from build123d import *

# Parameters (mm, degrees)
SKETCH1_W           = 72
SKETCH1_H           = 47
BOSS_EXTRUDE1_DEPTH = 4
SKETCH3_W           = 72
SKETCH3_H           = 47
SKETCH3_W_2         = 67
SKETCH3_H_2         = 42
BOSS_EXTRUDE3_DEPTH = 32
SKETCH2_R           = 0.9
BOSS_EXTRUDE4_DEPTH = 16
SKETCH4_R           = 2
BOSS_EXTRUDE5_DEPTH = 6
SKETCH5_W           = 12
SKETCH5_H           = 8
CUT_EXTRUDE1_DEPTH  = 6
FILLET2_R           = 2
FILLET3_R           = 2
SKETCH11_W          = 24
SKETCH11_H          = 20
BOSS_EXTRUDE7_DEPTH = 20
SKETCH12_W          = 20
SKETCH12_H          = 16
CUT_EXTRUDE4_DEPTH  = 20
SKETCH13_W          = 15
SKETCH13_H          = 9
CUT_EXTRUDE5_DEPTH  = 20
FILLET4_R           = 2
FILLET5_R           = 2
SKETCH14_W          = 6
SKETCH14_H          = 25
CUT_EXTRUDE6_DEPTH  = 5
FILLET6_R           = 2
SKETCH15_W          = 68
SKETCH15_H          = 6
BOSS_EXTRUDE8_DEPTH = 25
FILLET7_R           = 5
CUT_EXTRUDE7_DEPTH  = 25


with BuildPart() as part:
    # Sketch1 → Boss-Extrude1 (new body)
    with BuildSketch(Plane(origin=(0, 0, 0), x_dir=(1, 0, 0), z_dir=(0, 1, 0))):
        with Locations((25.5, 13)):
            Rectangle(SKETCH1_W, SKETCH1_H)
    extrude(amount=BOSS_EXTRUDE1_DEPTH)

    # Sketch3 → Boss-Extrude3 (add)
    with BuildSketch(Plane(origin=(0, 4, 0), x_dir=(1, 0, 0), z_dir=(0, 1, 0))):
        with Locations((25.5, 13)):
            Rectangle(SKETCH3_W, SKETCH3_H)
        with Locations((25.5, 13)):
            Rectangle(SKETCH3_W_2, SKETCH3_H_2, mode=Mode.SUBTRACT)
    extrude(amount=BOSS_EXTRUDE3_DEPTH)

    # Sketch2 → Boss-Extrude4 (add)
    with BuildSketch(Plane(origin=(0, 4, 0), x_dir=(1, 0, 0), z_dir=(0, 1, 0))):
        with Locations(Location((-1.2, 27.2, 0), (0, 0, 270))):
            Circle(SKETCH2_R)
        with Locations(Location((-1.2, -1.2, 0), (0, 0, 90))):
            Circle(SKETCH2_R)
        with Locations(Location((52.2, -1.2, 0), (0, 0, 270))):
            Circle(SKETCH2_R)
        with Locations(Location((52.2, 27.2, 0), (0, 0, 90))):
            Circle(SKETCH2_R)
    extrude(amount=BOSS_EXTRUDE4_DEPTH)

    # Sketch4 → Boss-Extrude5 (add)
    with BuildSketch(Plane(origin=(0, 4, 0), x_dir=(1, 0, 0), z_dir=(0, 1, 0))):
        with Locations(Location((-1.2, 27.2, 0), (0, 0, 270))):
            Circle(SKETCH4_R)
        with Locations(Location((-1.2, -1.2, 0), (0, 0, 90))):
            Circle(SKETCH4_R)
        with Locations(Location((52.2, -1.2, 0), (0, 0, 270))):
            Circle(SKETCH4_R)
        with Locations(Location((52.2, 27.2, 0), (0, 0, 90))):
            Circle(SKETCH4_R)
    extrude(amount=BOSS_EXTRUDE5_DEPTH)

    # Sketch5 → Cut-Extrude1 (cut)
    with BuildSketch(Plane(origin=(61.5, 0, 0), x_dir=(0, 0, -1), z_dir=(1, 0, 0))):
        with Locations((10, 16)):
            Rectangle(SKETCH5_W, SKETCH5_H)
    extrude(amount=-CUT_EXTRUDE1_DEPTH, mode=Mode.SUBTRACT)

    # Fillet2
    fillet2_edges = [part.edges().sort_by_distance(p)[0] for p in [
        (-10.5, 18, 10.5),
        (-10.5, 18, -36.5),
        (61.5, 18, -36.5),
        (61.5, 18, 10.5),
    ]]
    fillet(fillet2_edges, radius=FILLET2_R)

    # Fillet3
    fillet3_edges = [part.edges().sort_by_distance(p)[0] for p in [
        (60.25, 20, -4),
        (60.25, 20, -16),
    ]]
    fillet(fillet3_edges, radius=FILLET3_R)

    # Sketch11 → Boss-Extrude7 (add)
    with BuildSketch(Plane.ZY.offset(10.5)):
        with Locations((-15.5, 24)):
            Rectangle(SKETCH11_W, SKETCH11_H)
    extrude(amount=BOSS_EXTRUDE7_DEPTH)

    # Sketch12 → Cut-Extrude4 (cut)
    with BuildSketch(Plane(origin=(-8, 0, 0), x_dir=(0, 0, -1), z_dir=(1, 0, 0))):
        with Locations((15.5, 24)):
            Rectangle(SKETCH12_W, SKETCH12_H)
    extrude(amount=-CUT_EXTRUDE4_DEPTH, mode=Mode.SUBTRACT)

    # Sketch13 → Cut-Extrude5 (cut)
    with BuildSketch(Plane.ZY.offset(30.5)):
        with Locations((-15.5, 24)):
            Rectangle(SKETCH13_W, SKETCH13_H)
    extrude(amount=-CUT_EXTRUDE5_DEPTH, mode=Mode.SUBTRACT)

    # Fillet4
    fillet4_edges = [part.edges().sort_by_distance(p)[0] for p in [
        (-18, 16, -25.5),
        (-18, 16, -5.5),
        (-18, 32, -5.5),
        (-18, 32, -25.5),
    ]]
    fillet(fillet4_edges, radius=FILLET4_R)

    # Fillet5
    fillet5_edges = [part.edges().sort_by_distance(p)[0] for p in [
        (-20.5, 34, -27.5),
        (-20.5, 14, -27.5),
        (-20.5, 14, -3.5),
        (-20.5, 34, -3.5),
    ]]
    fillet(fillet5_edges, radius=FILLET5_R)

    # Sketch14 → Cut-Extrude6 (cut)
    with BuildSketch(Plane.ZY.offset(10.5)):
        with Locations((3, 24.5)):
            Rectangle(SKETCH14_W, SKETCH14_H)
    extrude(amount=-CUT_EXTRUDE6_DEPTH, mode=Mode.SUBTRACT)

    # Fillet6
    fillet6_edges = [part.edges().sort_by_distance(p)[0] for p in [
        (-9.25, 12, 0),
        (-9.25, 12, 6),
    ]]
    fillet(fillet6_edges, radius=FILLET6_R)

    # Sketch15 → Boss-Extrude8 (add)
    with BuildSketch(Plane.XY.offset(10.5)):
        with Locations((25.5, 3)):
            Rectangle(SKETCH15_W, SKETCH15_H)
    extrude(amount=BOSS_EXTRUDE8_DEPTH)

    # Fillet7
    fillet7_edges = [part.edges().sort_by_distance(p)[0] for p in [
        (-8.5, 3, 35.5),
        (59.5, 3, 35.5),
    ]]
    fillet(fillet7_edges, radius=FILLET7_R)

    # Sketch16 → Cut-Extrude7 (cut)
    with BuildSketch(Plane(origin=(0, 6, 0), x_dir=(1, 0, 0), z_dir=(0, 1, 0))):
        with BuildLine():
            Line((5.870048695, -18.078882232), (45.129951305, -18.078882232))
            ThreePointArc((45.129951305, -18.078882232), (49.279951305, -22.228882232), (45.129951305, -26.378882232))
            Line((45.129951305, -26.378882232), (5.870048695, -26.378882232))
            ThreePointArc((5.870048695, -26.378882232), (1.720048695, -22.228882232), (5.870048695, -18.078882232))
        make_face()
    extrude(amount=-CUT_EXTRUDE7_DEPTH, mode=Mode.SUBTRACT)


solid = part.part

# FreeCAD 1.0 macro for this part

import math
import FreeCAD as App
import Part
import Sketcher


def edges_at(feature, points):
    """Names of the edges that pass closest to the given points."""
    edges = feature.Shape.Edges
    near = lambda p: min(range(len(edges)), key=lambda i: edges[i].distToShape(Part.Vertex(*p))[0])
    return sorted({f"Edge{near(p) + 1}" for p in points})


def add_polygon(sketch, points):
    """Adds a closed chain of lines whose ends are joined by coincident constraints."""
    first, n = sketch.GeometryCount, len(points)
    for a, b in zip(points, points[1:] + points[:1]):
        sketch.addGeometry(Part.LineSegment(App.Vector(*a, 0), App.Vector(*b, 0)), False)
    for i in range(n):
        sketch.addConstraint(Sketcher.Constraint("Coincident", first + i, 2, first + (i + 1) % n, 1))

doc = App.newDocument("Part")
body = doc.addObject("PartDesign::Body", "Body")

sketch1 = body.newObject("Sketcher::SketchObject", "Sketch")
sketch1.AttachmentSupport = (doc.getObject("XZ_Plane"), [""])
sketch1.MapMode = "FlatFace"
add_polygon(sketch1, [(-10.5, -36.5), (-10.5, 10.5), (61.5, 10.5), (61.5, -36.5)])
sketch1.addConstraint(Sketcher.Constraint("Vertical", 0))
sketch1.addConstraint(Sketcher.Constraint("Horizontal", 1))
sketch1.addConstraint(Sketcher.Constraint("Vertical", 2))
sketch1.addConstraint(Sketcher.Constraint("Horizontal", 3))
sketch1.addConstraint(Sketcher.Constraint("DistanceX", 1, 1, 1, 2, 72.0))
sketch1.addConstraint(Sketcher.Constraint("DistanceY", 0, 1, 0, 2, 47.0))
sketch1.addConstraint(Sketcher.Constraint("DistanceX", 0, 2, -1, 1, 10.5))
sketch1.addConstraint(Sketcher.Constraint("DistanceY", -1, 1, 0, 2, 10.5))
pad1 = body.newObject("PartDesign::Pad", "Pad")
pad1.Profile = sketch1
pad1.Length = 4
pad1.Reversed = True

sketch2 = body.newObject("Sketcher::SketchObject", "Sketch001")
sketch2.AttachmentSupport = (doc.getObject("XZ_Plane"), [""])
sketch2.MapMode = "FlatFace"
sketch2.AttachmentOffset = App.Placement(App.Vector(0, 0, -4), App.Rotation())
add_polygon(sketch2, [(-10.5, -36.5), (-10.5, 10.5), (61.5, 10.5), (61.5, -36.5)])
add_polygon(sketch2, [(59, 8), (-8, 8), (-8, -34), (59, -34)])
sketch2.addConstraint(Sketcher.Constraint("Vertical", 0))
sketch2.addConstraint(Sketcher.Constraint("Horizontal", 1))
sketch2.addConstraint(Sketcher.Constraint("Vertical", 2))
sketch2.addConstraint(Sketcher.Constraint("Horizontal", 3))
sketch2.addConstraint(Sketcher.Constraint("Horizontal", 4))
sketch2.addConstraint(Sketcher.Constraint("Vertical", 5))
sketch2.addConstraint(Sketcher.Constraint("Horizontal", 6))
sketch2.addConstraint(Sketcher.Constraint("Vertical", 7))
sketch2.addConstraint(Sketcher.Constraint("DistanceX", 1, 1, 1, 2, 72.0))
sketch2.addConstraint(Sketcher.Constraint("DistanceX", 4, 2, 4, 1, 67.0))
sketch2.addConstraint(Sketcher.Constraint("DistanceY", 0, 1, 0, 2, 47.0))
sketch2.addConstraint(Sketcher.Constraint("DistanceY", 5, 2, 5, 1, 42.0))
sketch2.addConstraint(Sketcher.Constraint("DistanceX", 4, 2, -1, 1, 8.0))
sketch2.addConstraint(Sketcher.Constraint("DistanceY", -1, 1, 4, 2, 8.0))
sketch2.addConstraint(Sketcher.Constraint("DistanceX", 0, 2, -1, 1, 10.5))
sketch2.addConstraint(Sketcher.Constraint("DistanceY", -1, 1, 0, 2, 10.5))
pad2 = body.newObject("PartDesign::Pad", "Pad001")
pad2.Profile = sketch2
pad2.Length = 32
pad2.Reversed = True

sketch3 = body.newObject("Sketcher::SketchObject", "Sketch002")
sketch3.AttachmentSupport = (doc.getObject("XZ_Plane"), [""])
sketch3.MapMode = "FlatFace"
sketch3.AttachmentOffset = App.Placement(App.Vector(0, 0, -4), App.Rotation())
sketch3.addGeometry(Part.Circle(App.Vector(-1.2, -27.2, 0), App.Vector(0, 0, 1), 0.9), False)
sketch3.addGeometry(Part.Circle(App.Vector(-1.2, 1.2, 0), App.Vector(0, 0, 1), 0.9), False)
sketch3.addGeometry(Part.Circle(App.Vector(52.2, 1.2, 0), App.Vector(0, 0, 1), 0.9), False)
sketch3.addGeometry(Part.Circle(App.Vector(52.2, -27.2, 0), App.Vector(0, 0, 1), 0.9), False)
sketch3.addConstraint(Sketcher.Constraint("Equal", 0, 1))
sketch3.addConstraint(Sketcher.Constraint("Equal", 1, 2))
sketch3.addConstraint(Sketcher.Constraint("Equal", 2, 3))
sketch3.addConstraint(Sketcher.Constraint("Horizontal", 1, 3, 2, 3))
sketch3.addConstraint(Sketcher.Constraint("Horizontal", 0, 3, 3, 3))
sketch3.addConstraint(Sketcher.Constraint("Vertical", 0, 3, 1, 3))
sketch3.addConstraint(Sketcher.Constraint("Vertical", 2, 3, 3, 3))
sketch3.addConstraint(Sketcher.Constraint("Diameter", 0, 1.8))
sketch3.addConstraint(Sketcher.Constraint("DistanceX", 0, 3, -1, 1, 1.2))
sketch3.addConstraint(Sketcher.Constraint("DistanceY", 0, 3, -1, 1, 27.2))
sketch3.addConstraint(Sketcher.Constraint("DistanceY", -1, 1, 1, 3, 1.2))
sketch3.addConstraint(Sketcher.Constraint("DistanceX", -1, 1, 2, 3, 52.2))
pad3 = body.newObject("PartDesign::Pad", "Pad002")
pad3.Profile = sketch3
pad3.Length = 16
pad3.Reversed = True

sketch4 = body.newObject("Sketcher::SketchObject", "Sketch003")
sketch4.AttachmentSupport = (doc.getObject("XZ_Plane"), [""])
sketch4.MapMode = "FlatFace"
sketch4.AttachmentOffset = App.Placement(App.Vector(0, 0, -4), App.Rotation())
sketch4.addGeometry(Part.Circle(App.Vector(-1.2, -27.2, 0), App.Vector(0, 0, 1), 2), False)
sketch4.addGeometry(Part.Circle(App.Vector(-1.2, 1.2, 0), App.Vector(0, 0, 1), 2), False)
sketch4.addGeometry(Part.Circle(App.Vector(52.2, 1.2, 0), App.Vector(0, 0, 1), 2), False)
sketch4.addGeometry(Part.Circle(App.Vector(52.2, -27.2, 0), App.Vector(0, 0, 1), 2), False)
sketch4.addConstraint(Sketcher.Constraint("Equal", 0, 1))
sketch4.addConstraint(Sketcher.Constraint("Equal", 1, 2))
sketch4.addConstraint(Sketcher.Constraint("Equal", 2, 3))
sketch4.addConstraint(Sketcher.Constraint("Horizontal", 1, 3, 2, 3))
sketch4.addConstraint(Sketcher.Constraint("Horizontal", 0, 3, 3, 3))
sketch4.addConstraint(Sketcher.Constraint("Vertical", 0, 3, 1, 3))
sketch4.addConstraint(Sketcher.Constraint("Vertical", 2, 3, 3, 3))
sketch4.addConstraint(Sketcher.Constraint("Diameter", 0, 4.0))
sketch4.addConstraint(Sketcher.Constraint("DistanceX", 0, 3, -1, 1, 1.2))
sketch4.addConstraint(Sketcher.Constraint("DistanceY", 0, 3, -1, 1, 27.2))
sketch4.addConstraint(Sketcher.Constraint("DistanceY", -1, 1, 1, 3, 1.2))
sketch4.addConstraint(Sketcher.Constraint("DistanceX", -1, 1, 2, 3, 52.2))
pad4 = body.newObject("PartDesign::Pad", "Pad003")
pad4.Profile = sketch4
pad4.Length = 6
pad4.Reversed = True

sketch5 = body.newObject("Sketcher::SketchObject", "Sketch004")
sketch5.AttachmentSupport = (doc.getObject("YZ_Plane"), [""])
sketch5.MapMode = "FlatFace"
sketch5.AttachmentOffset = App.Placement(App.Vector(0, 0, 61.5), App.Rotation())
add_polygon(sketch5, [(20, -4), (12, -4), (12, -16), (20, -16)])
sketch5.addConstraint(Sketcher.Constraint("Horizontal", 0))
sketch5.addConstraint(Sketcher.Constraint("Vertical", 1))
sketch5.addConstraint(Sketcher.Constraint("Horizontal", 2))
sketch5.addConstraint(Sketcher.Constraint("Vertical", 3))
sketch5.addConstraint(Sketcher.Constraint("DistanceX", 0, 2, 0, 1, 8.0))
sketch5.addConstraint(Sketcher.Constraint("DistanceY", 1, 2, 1, 1, 12.0))
sketch5.addConstraint(Sketcher.Constraint("DistanceX", -1, 1, 0, 2, 12.0))
sketch5.addConstraint(Sketcher.Constraint("DistanceY", 0, 2, -1, 1, 4.0))
pocket1 = body.newObject("PartDesign::Pocket", "Pocket")
pocket1.Profile = sketch5
pocket1.Length = 6
doc.recompute()

fillet = body.newObject("PartDesign::Fillet", "Fillet")
fillet.Base = (pocket1, edges_at(pocket1, [
    (-10.5, 18, 10.5),
    (-10.5, 18, -36.5),
    (61.5, 18, -36.5),
    (61.5, 18, 10.5),
]))
fillet.Radius = 2
doc.recompute()

fillet2 = body.newObject("PartDesign::Fillet", "Fillet001")
fillet2.Base = (fillet, edges_at(fillet, [(60.25, 20, -4), (60.25, 20, -16)]))
fillet2.Radius = 2

sketch6 = body.newObject("Sketcher::SketchObject", "Sketch005")
sketch6.AttachmentSupport = (doc.getObject("YZ_Plane"), [""])
sketch6.MapMode = "FlatFace"
sketch6.AttachmentOffset = App.Placement(App.Vector(0, 0, -10.5), App.Rotation())
add_polygon(sketch6, [(34, -27.5), (14, -27.5), (14, -3.5), (34, -3.5)])
sketch6.addConstraint(Sketcher.Constraint("Horizontal", 0))
sketch6.addConstraint(Sketcher.Constraint("Vertical", 1))
sketch6.addConstraint(Sketcher.Constraint("Horizontal", 2))
sketch6.addConstraint(Sketcher.Constraint("Vertical", 3))
sketch6.addConstraint(Sketcher.Constraint("DistanceX", 0, 2, 0, 1, 20.0))
sketch6.addConstraint(Sketcher.Constraint("DistanceY", 1, 1, 1, 2, 24.0))
sketch6.addConstraint(Sketcher.Constraint("DistanceX", -1, 1, 0, 2, 14.0))
sketch6.addConstraint(Sketcher.Constraint("DistanceY", 0, 2, -1, 1, 27.5))
pad5 = body.newObject("PartDesign::Pad", "Pad004")
pad5.Profile = sketch6
pad5.Length = 20
pad5.Reversed = True

sketch7 = body.newObject("Sketcher::SketchObject", "Sketch006")
sketch7.AttachmentSupport = (doc.getObject("YZ_Plane"), [""])
sketch7.MapMode = "FlatFace"
sketch7.AttachmentOffset = App.Placement(App.Vector(0, 0, -8), App.Rotation())
add_polygon(sketch7, [(32, -5.5), (16, -5.5), (16, -25.5), (32, -25.5)])
sketch7.addConstraint(Sketcher.Constraint("Horizontal", 0))
sketch7.addConstraint(Sketcher.Constraint("Vertical", 1))
sketch7.addConstraint(Sketcher.Constraint("Horizontal", 2))
sketch7.addConstraint(Sketcher.Constraint("Vertical", 3))
sketch7.addConstraint(Sketcher.Constraint("DistanceX", 0, 2, 0, 1, 16.0))
sketch7.addConstraint(Sketcher.Constraint("DistanceY", 1, 2, 1, 1, 20.0))
sketch7.addConstraint(Sketcher.Constraint("DistanceX", -1, 1, 0, 2, 16.0))
sketch7.addConstraint(Sketcher.Constraint("DistanceY", 0, 2, -1, 1, 5.5))
pocket2 = body.newObject("PartDesign::Pocket", "Pocket001")
pocket2.Profile = sketch7
pocket2.Length = 20

sketch8 = body.newObject("Sketcher::SketchObject", "Sketch007")
sketch8.AttachmentSupport = (doc.getObject("YZ_Plane"), [""])
sketch8.MapMode = "FlatFace"
sketch8.AttachmentOffset = App.Placement(App.Vector(0, 0, -30.5), App.Rotation())
add_polygon(sketch8, [(28.5, -23), (19.5, -23), (19.5, -8), (28.5, -8)])
sketch8.addConstraint(Sketcher.Constraint("Horizontal", 0))
sketch8.addConstraint(Sketcher.Constraint("Vertical", 1))
sketch8.addConstraint(Sketcher.Constraint("Horizontal", 2))
sketch8.addConstraint(Sketcher.Constraint("Vertical", 3))
sketch8.addConstraint(Sketcher.Constraint("DistanceX", 0, 2, 0, 1, 9.0))
sketch8.addConstraint(Sketcher.Constraint("DistanceY", 1, 1, 1, 2, 15.0))
sketch8.addConstraint(Sketcher.Constraint("DistanceY", 0, 2, -1, 1, 23.0))
sketch8.addConstraint(Sketcher.Constraint("DistanceX", -1, 1, 0, 2, 19.5))
pocket3 = body.newObject("PartDesign::Pocket", "Pocket002")
pocket3.Profile = sketch8
pocket3.Length = 20
pocket3.Reversed = True
doc.recompute()

fillet3 = body.newObject("PartDesign::Fillet", "Fillet002")
fillet3.Base = (pocket3, edges_at(pocket3, [
    (-18, 16, -25.5),
    (-18, 16, -5.5),
    (-18, 32, -5.5),
    (-18, 32, -25.5),
]))
fillet3.Radius = 2
doc.recompute()

fillet4 = body.newObject("PartDesign::Fillet", "Fillet003")
fillet4.Base = (fillet3, edges_at(fillet3, [
    (-20.5, 34, -27.5),
    (-20.5, 14, -27.5),
    (-20.5, 14, -3.5),
    (-20.5, 34, -3.5),
]))
fillet4.Radius = 2

sketch9 = body.newObject("Sketcher::SketchObject", "Sketch008")
sketch9.AttachmentSupport = (doc.getObject("YZ_Plane"), [""])
sketch9.MapMode = "FlatFace"
sketch9.AttachmentOffset = App.Placement(App.Vector(0, 0, -10.5), App.Rotation())
add_polygon(sketch9, [(37, 0), (12, 0), (12, 6), (37, 6)])
sketch9.addConstraint(Sketcher.Constraint("Horizontal", 0))
sketch9.addConstraint(Sketcher.Constraint("Vertical", 1))
sketch9.addConstraint(Sketcher.Constraint("Horizontal", 2))
sketch9.addConstraint(Sketcher.Constraint("Vertical", 3))
sketch9.addConstraint(Sketcher.Constraint("PointOnObject", 0, 2, -1))
sketch9.addConstraint(Sketcher.Constraint("DistanceX", 0, 2, 0, 1, 25.0))
sketch9.addConstraint(Sketcher.Constraint("DistanceY", 1, 1, 1, 2, 6.0))
sketch9.addConstraint(Sketcher.Constraint("DistanceX", -1, 1, 0, 2, 12.0))
pocket4 = body.newObject("PartDesign::Pocket", "Pocket003")
pocket4.Profile = sketch9
pocket4.Length = 5
pocket4.Reversed = True
doc.recompute()

fillet5 = body.newObject("PartDesign::Fillet", "Fillet004")
fillet5.Base = (pocket4, edges_at(pocket4, [(-9.25, 12, 0), (-9.25, 12, 6)]))
fillet5.Radius = 2

sketch10 = body.newObject("Sketcher::SketchObject", "Sketch009")
sketch10.AttachmentSupport = (doc.getObject("XY_Plane"), [""])
sketch10.MapMode = "FlatFace"
sketch10.AttachmentOffset = App.Placement(App.Vector(0, 0, 10.5), App.Rotation())
add_polygon(sketch10, [(-8.5, 6), (-8.5, 0), (59.5, 0), (59.5, 6)])
sketch10.addConstraint(Sketcher.Constraint("Vertical", 0))
sketch10.addConstraint(Sketcher.Constraint("Horizontal", 1))
sketch10.addConstraint(Sketcher.Constraint("Vertical", 2))
sketch10.addConstraint(Sketcher.Constraint("Horizontal", 3))
sketch10.addConstraint(Sketcher.Constraint("PointOnObject", 0, 2, -1))
sketch10.addConstraint(Sketcher.Constraint("DistanceX", 1, 1, 1, 2, 68.0))
sketch10.addConstraint(Sketcher.Constraint("DistanceY", 0, 2, 0, 1, 6.0))
sketch10.addConstraint(Sketcher.Constraint("DistanceX", 0, 2, -1, 1, 8.5))
pad6 = body.newObject("PartDesign::Pad", "Pad005")
pad6.Profile = sketch10
pad6.Length = 25
doc.recompute()

fillet6 = body.newObject("PartDesign::Fillet", "Fillet005")
fillet6.Base = (pad6, edges_at(pad6, [(-8.5, 3, 35.5), (59.5, 3, 35.5)]))
fillet6.Radius = 5

sketch11 = body.newObject("Sketcher::SketchObject", "Sketch010")
sketch11.AttachmentSupport = (doc.getObject("XZ_Plane"), [""])
sketch11.MapMode = "FlatFace"
sketch11.AttachmentOffset = App.Placement(App.Vector(0, 0, -6), App.Rotation())
sketch11.addGeometry(Part.LineSegment(App.Vector(45.129951, 18.078882, 0), App.Vector(5.870049, 18.078882, 0)), False)
sketch11.addGeometry(Part.ArcOfCircle(Part.Circle(App.Vector(5.870049, 22.228882, 0), App.Vector(0, 0, 1), 4.15), math.radians(90), math.radians(270)), False)
sketch11.addGeometry(Part.LineSegment(App.Vector(5.870049, 26.378882, 0), App.Vector(45.129951, 26.378882, 0)), False)
sketch11.addGeometry(Part.ArcOfCircle(Part.Circle(App.Vector(45.129951, 22.228882, 0), App.Vector(0, 0, 1), 4.15), math.radians(-90), math.radians(90)), False)
sketch11.addConstraint(Sketcher.Constraint("Tangent", 0, 2, 1, 2))
sketch11.addConstraint(Sketcher.Constraint("Tangent", 1, 1, 2, 1))
sketch11.addConstraint(Sketcher.Constraint("Tangent", 2, 2, 3, 2))
sketch11.addConstraint(Sketcher.Constraint("Tangent", 3, 1, 0, 1))
sketch11.addConstraint(Sketcher.Constraint("Horizontal", 0))
sketch11.addConstraint(Sketcher.Constraint("Horizontal", 2))
sketch11.addConstraint(Sketcher.Constraint("Radius", 1, 4.15))
sketch11.addConstraint(Sketcher.Constraint("DistanceX", 0, 2, 0, 1, 39.259903))
sketch11.addConstraint(Sketcher.Constraint("DistanceX", -1, 1, 1, 3, 5.870049))
sketch11.addConstraint(Sketcher.Constraint("DistanceY", -1, 1, 1, 3, 22.228882))
pocket5 = body.newObject("PartDesign::Pocket", "Pocket004")
pocket5.Profile = sketch11
pocket5.Length = 25
pocket5.Reversed = True

doc.recompute()
